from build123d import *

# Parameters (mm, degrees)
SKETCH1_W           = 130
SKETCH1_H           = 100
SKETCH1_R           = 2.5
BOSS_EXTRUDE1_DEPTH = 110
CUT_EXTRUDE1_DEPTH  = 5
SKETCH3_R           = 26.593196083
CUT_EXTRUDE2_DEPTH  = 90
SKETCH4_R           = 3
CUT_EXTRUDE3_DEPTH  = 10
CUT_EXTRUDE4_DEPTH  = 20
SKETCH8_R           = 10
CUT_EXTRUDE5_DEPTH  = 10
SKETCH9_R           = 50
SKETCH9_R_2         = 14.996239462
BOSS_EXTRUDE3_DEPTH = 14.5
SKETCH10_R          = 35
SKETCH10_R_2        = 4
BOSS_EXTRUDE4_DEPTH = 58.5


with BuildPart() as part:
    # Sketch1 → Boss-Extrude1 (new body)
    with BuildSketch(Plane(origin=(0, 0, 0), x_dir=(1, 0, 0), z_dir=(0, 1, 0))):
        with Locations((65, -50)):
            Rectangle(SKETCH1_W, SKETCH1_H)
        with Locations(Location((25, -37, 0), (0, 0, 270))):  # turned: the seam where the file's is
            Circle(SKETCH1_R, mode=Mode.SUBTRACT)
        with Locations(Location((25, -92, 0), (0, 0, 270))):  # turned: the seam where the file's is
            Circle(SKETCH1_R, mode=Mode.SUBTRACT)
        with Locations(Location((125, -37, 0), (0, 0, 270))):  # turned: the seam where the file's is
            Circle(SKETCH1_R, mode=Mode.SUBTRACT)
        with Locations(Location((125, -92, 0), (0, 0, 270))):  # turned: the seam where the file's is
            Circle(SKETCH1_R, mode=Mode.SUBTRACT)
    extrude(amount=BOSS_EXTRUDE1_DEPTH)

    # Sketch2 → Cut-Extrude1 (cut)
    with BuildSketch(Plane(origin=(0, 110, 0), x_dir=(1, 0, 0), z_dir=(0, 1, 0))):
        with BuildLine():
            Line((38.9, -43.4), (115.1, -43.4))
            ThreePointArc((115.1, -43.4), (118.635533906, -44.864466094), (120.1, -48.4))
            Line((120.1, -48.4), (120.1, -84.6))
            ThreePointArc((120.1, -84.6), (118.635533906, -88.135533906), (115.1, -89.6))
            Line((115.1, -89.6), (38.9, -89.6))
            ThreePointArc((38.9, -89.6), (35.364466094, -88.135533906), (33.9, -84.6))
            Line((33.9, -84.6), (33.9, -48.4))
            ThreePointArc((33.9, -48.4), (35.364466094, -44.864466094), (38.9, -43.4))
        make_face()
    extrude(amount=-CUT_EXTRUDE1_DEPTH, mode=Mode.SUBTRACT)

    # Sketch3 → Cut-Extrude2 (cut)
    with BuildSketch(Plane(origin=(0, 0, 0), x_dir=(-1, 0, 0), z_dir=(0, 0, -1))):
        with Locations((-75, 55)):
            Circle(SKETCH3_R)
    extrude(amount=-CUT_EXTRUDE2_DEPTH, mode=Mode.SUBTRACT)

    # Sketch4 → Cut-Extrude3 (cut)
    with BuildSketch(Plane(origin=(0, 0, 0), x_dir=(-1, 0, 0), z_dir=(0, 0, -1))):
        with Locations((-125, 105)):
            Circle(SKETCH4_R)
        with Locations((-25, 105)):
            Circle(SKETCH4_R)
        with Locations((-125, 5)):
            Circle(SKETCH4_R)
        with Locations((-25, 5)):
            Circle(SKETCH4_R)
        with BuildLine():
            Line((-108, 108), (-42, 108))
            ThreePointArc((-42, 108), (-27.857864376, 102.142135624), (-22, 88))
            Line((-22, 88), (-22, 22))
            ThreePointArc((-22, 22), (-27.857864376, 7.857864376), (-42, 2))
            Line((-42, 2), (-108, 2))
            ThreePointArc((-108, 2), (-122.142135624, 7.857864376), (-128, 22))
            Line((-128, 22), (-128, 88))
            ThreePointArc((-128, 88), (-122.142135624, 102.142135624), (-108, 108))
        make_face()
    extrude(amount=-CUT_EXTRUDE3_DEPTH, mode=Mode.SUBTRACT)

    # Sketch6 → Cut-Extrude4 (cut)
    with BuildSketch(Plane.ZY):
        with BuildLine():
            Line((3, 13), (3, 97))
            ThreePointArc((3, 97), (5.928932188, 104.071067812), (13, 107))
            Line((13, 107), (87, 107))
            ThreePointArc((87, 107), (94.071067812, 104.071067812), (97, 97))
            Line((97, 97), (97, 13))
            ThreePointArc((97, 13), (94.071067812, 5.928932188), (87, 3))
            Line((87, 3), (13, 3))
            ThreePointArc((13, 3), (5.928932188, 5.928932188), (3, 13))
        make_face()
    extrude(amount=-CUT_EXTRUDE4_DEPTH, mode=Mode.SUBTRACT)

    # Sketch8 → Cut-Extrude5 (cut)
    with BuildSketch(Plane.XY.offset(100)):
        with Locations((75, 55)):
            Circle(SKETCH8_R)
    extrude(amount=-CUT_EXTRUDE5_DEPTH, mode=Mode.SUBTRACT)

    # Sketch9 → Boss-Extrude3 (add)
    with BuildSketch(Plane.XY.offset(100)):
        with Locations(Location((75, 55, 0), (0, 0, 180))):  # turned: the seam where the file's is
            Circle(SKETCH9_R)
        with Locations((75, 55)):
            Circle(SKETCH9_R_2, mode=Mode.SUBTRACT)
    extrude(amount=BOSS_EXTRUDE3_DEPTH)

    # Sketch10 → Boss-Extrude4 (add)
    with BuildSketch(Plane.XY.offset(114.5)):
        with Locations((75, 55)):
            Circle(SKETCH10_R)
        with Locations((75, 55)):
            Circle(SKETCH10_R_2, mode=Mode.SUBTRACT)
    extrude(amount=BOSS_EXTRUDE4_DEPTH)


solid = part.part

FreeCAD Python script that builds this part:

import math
import FreeCAD as App
import Part
import Sketcher

V = App.Vector

doc = App.newDocument("Part")
body = doc.addObject("PartDesign::Body", "Body")

sketch1 = doc.addObject("Sketcher::SketchObject", "Sketch")
body.addObject(sketch1)
sketch1.AttachmentSupport = (doc.XZ_Plane, [""])
sketch1.MapMode = "FlatFace"
sketch1.addGeometry([
    Part.LineSegment(V(0, 0, 0), V(0, 100, 0)),
    Part.LineSegment(V(0, 100, 0), V(130, 100, 0)),
    Part.LineSegment(V(130, 100, 0), V(130, 0, 0)),
    Part.LineSegment(V(130, 0, 0), V(0, 0, 0)),
    Part.Circle(V(25, 92, 0), V(0, 0, 1), 2.5),
    Part.Circle(V(125, 92, 0), V(0, 0, 1), 2.5),
    Part.Circle(V(25, 37, 0), V(0, 0, 1), 2.5),
    Part.Circle(V(125, 37, 0), V(0, 0, 1), 2.5),
], False)
sketch1.addConstraint([
    Sketcher.Constraint("Coincident", 0, 2, 1, 1),
    Sketcher.Constraint("Coincident", 1, 2, 2, 1),
    Sketcher.Constraint("Coincident", 2, 2, 3, 1),
    Sketcher.Constraint("Coincident", 3, 2, 0, 1),
    Sketcher.Constraint("Vertical", 0),
    Sketcher.Constraint("Horizontal", 1),
    Sketcher.Constraint("Vertical", 2),
    Sketcher.Constraint("Horizontal", 3),
    Sketcher.Constraint("Coincident", 3, 2, -1, 1),
    Sketcher.Constraint("Equal", 4, 5),
    Sketcher.Constraint("Equal", 5, 6),
    Sketcher.Constraint("Equal", 6, 7),
    Sketcher.Constraint("Horizontal", 4, 3, 5, 3),
    Sketcher.Constraint("Horizontal", 6, 3, 7, 3),
    Sketcher.Constraint("Vertical", 4, 3, 6, 3),
    Sketcher.Constraint("Vertical", 5, 3, 7, 3),
    Sketcher.Constraint("Diameter", 4, 5.0),
    Sketcher.Constraint("DistanceX", 1, 1, 1, 2, 130.0),
    Sketcher.Constraint("DistanceY", 0, 1, 0, 2, 100.0),
    Sketcher.Constraint("DistanceX", -1, 1, 4, 3, 25.0),
    Sketcher.Constraint("DistanceY", -1, 1, 4, 3, 92.0),
    Sketcher.Constraint("DistanceX", -1, 1, 5, 3, 125.0),
    Sketcher.Constraint("DistanceY", -1, 1, 6, 3, 37.0),
])
pad1 = doc.addObject("PartDesign::Pad", "Pad")
body.addObject(pad1)
pad1.Profile = sketch1
pad1.Length = 110
pad1.Reversed = True

sketch2 = doc.addObject("Sketcher::SketchObject", "Sketch001")
body.addObject(sketch2)
sketch2.AttachmentSupport = (doc.XZ_Plane, [""])
sketch2.MapMode = "FlatFace"
sketch2.AttachmentOffset = App.Placement(V(0, 0, -110), App.Rotation())
sketch2.addGeometry([
    Part.LineSegment(V(115, 43, 0), V(39, 43, 0)),
    Part.ArcOfCircle(Part.Circle(V(39, 48, 0), V(0, 0, 1), 5), math.radians(180), math.radians(270)),
    Part.LineSegment(V(34, 48, 0), V(34, 85, 0)),
    Part.ArcOfCircle(Part.Circle(V(39, 85, 0), V(0, 0, 1), 5), math.radians(90), math.radians(180)),
    Part.LineSegment(V(39, 90, 0), V(115, 90, 0)),
    Part.ArcOfCircle(Part.Circle(V(115, 85, 0), V(0, 0, 1), 5), math.radians(0), math.radians(90)),
    Part.LineSegment(V(120, 85, 0), V(120, 48, 0)),
    Part.ArcOfCircle(Part.Circle(V(115, 48, 0), V(0, 0, 1), 5), math.radians(-90), math.radians(0)),
], False)
sketch2.addConstraint([
    Sketcher.Constraint("Tangent", 0, 2, 1, 2),
    Sketcher.Constraint("Tangent", 1, 1, 2, 1),
    Sketcher.Constraint("Tangent", 2, 2, 3, 2),
    Sketcher.Constraint("Tangent", 3, 1, 4, 1),
    Sketcher.Constraint("Tangent", 4, 2, 5, 2),
    Sketcher.Constraint("Tangent", 5, 1, 6, 1),
    Sketcher.Constraint("Tangent", 6, 2, 7, 2),
    Sketcher.Constraint("Tangent", 7, 1, 0, 1),
    Sketcher.Constraint("Horizontal", 0),
    Sketcher.Constraint("Vertical", 2),
    Sketcher.Constraint("Horizontal", 4),
    Sketcher.Constraint("Vertical", 6),
    Sketcher.Constraint("Equal", 1, 3),
    Sketcher.Constraint("Equal", 3, 5),
    Sketcher.Constraint("Equal", 5, 7),
    Sketcher.Constraint("Radius", 1, 5.0),
    Sketcher.Constraint("DistanceX", 0, 2, 0, 1, 76.2),
    Sketcher.Constraint("DistanceY", 2, 1, 2, 2, 36.2),
    Sketcher.Constraint("DistanceX", -1, 1, 1, 3, 38.9),
    Sketcher.Constraint("DistanceY", -1, 1, 1, 3, 48.4),
])
pocket1 = doc.addObject("PartDesign::Pocket", "Pocket")
body.addObject(pocket1)
pocket1.Profile = sketch2
pocket1.Length = 5
pocket1.Reversed = True

sketch3 = doc.addObject("Sketcher::SketchObject", "Sketch002")
body.addObject(sketch3)
sketch3.AttachmentSupport = (doc.XY_Plane, [""])
sketch3.MapMode = "FlatFace"
sketch3.addGeometry(Part.Circle(V(75, 55, 0), V(0, 0, 1), 27), False)
sketch3.addConstraint([
    Sketcher.Constraint("DistanceX", -1, 1, 0, 3, 75.0),
    Sketcher.Constraint("DistanceY", -1, 1, 0, 3, 55.0),
    Sketcher.Constraint("Diameter", 0, 53.186392),
])
pocket2 = doc.addObject("PartDesign::Pocket", "Pocket001")
body.addObject(pocket2)
pocket2.Profile = sketch3
pocket2.Length = 90
pocket2.Reversed = True

sketch4 = doc.addObject("Sketcher::SketchObject", "Sketch003")
body.addObject(sketch4)
sketch4.AttachmentSupport = (doc.XY_Plane, [""])
sketch4.MapMode = "FlatFace"
sketch4.addGeometry([
    Part.Circle(V(125, 105, 0), V(0, 0, 1), 3),
    Part.Circle(V(25, 105, 0), V(0, 0, 1), 3),
    Part.Circle(V(125, 5, 0), V(0, 0, 1), 3),
    Part.Circle(V(25, 5, 0), V(0, 0, 1), 3),
    Part.LineSegment(V(42, 108, 0), V(108, 108, 0)),
    Part.ArcOfCircle(Part.Circle(V(108, 88, 0), V(0, 0, 1), 20), math.radians(0), math.radians(90)),
    Part.LineSegment(V(128, 88, 0), V(128, 22, 0)),
    Part.ArcOfCircle(Part.Circle(V(108, 22, 0), V(0, 0, 1), 20), math.radians(-90), math.radians(0)),
    Part.LineSegment(V(108, 2, 0), V(42, 2, 0)),
    Part.ArcOfCircle(Part.Circle(V(42, 22, 0), V(0, 0, 1), 20), math.radians(180), math.radians(270)),
    Part.LineSegment(V(22, 22, 0), V(22, 88, 0)),
    Part.ArcOfCircle(Part.Circle(V(42, 88, 0), V(0, 0, 1), 20), math.radians(90), math.radians(180)),
], False)
sketch4.addConstraint([
    Sketcher.Constraint("Tangent", 4, 2, 5, 2),
    Sketcher.Constraint("Tangent", 5, 1, 6, 1),
    Sketcher.Constraint("Tangent", 6, 2, 7, 2),
    Sketcher.Constraint("Tangent", 7, 1, 8, 1),
    Sketcher.Constraint("Tangent", 8, 2, 9, 2),
    Sketcher.Constraint("Tangent", 9, 1, 10, 1),
    Sketcher.Constraint("Tangent", 10, 2, 11, 2),
    Sketcher.Constraint("Tangent", 11, 1, 4, 1),
    Sketcher.Constraint("Horizontal", 4),
    Sketcher.Constraint("Vertical", 6),
    Sketcher.Constraint("Horizontal", 8),
    Sketcher.Constraint("Vertical", 10),
    Sketcher.Constraint("Equal", 0, 1),
    Sketcher.Constraint("Equal", 1, 2),
    Sketcher.Constraint("Equal", 2, 3),
    Sketcher.Constraint("Equal", 5, 7),
    Sketcher.Constraint("Equal", 7, 9),
    Sketcher.Constraint("Equal", 9, 11),
    Sketcher.Constraint("Horizontal", 0, 3, 1, 3),
    Sketcher.Constraint("Horizontal", 2, 3, 3, 3),
    Sketcher.Constraint("Vertical", 0, 3, 2, 3),
    Sketcher.Constraint("Vertical", 1, 3, 3, 3),
    Sketcher.Constraint("Equal", 8, 6),
    Sketcher.Constraint("Diameter", 0, 6.0),
    Sketcher.Constraint("Radius", 5, 20.0),
    Sketcher.Constraint("DistanceX", 4, 1, 4, 2, 66.0),
    Sketcher.Constraint("DistanceX", -1, 1, 0, 3, 125.0),
    Sketcher.Constraint("DistanceY", -1, 1, 0, 3, 105.0),
    Sketcher.Constraint("DistanceX", -1, 1, 1, 3, 25.0),
    Sketcher.Constraint("DistanceY", -1, 1, 2, 3, 5.0),
    Sketcher.Constraint("DistanceX", -1, 1, 5, 3, 108.0),
    Sketcher.Constraint("DistanceY", -1, 1, 5, 3, 88.0),
])
pocket3 = doc.addObject("PartDesign::Pocket", "Pocket002")
body.addObject(pocket3)
pocket3.Profile = sketch4
pocket3.Length = 10
pocket3.Reversed = True

sketch5 = doc.addObject("Sketcher::SketchObject", "Sketch004")
body.addObject(sketch5)
sketch5.AttachmentSupport = (doc.YZ_Plane, [""])
sketch5.MapMode = "FlatFace"
sketch5.addGeometry([
    Part.LineSegment(V(97, 3, 0), V(13, 3, 0)),
    Part.ArcOfCircle(Part.Circle(V(13, 13, 0), V(0, 0, 1), 10), math.radians(180), math.radians(270)),
    Part.LineSegment(V(3, 13, 0), V(3, 87, 0)),
    Part.ArcOfCircle(Part.Circle(V(13, 87, 0), V(0, 0, 1), 10), math.radians(90), math.radians(180)),
    Part.LineSegment(V(13, 97, 0), V(97, 97, 0)),
    Part.ArcOfCircle(Part.Circle(V(97, 87, 0), V(0, 0, 1), 10), math.radians(0), math.radians(90)),
    Part.LineSegment(V(107, 87, 0), V(107, 13, 0)),
    Part.ArcOfCircle(Part.Circle(V(97, 13, 0), V(0, 0, 1), 10), math.radians(-90), math.radians(0)),
], False)
sketch5.addConstraint([
    Sketcher.Constraint("Tangent", 0, 2, 1, 2),
    Sketcher.Constraint("Tangent", 1, 1, 2, 1),
    Sketcher.Constraint("Tangent", 2, 2, 3, 2),
    Sketcher.Constraint("Tangent", 3, 1, 4, 1),
    Sketcher.Constraint("Tangent", 4, 2, 5, 2),
    Sketcher.Constraint("Tangent", 5, 1, 6, 1),
    Sketcher.Constraint("Tangent", 6, 2, 7, 2),
    Sketcher.Constraint("Tangent", 7, 1, 0, 1),
    Sketcher.Constraint("Horizontal", 0),
    Sketcher.Constraint("Vertical", 2),
    Sketcher.Constraint("Horizontal", 4),
    Sketcher.Constraint("Vertical", 6),
    Sketcher.Constraint("Equal", 1, 3),
    Sketcher.Constraint("Equal", 3, 5),
    Sketcher.Constraint("Equal", 5, 7),
    Sketcher.Constraint("Radius", 1, 10.0),
    Sketcher.Constraint("DistanceX", 0, 2, 0, 1, 84.0),
    Sketcher.Constraint("DistanceY", 2, 1, 2, 2, 74.0),
    Sketcher.Constraint("DistanceX", -1, 1, 1, 3, 13.0),
    Sketcher.Constraint("DistanceY", -1, 1, 1, 3, 13.0),
])
pocket4 = doc.addObject("PartDesign::Pocket", "Pocket003")
body.addObject(pocket4)
pocket4.Profile = sketch5
pocket4.Length = 20
pocket4.Reversed = True

sketch6 = doc.addObject("Sketcher::SketchObject", "Sketch005")
body.addObject(sketch6)
sketch6.AttachmentSupport = (doc.XY_Plane, [""])
sketch6.MapMode = "FlatFace"
sketch6.AttachmentOffset = App.Placement(V(0, 0, 100), App.Rotation())
sketch6.addGeometry(Part.Circle(V(75, 55, 0), V(0, 0, 1), 10), False)
sketch6.addConstraint([
    Sketcher.Constraint("Diameter", 0, 20.0),
    Sketcher.Constraint("DistanceX", -1, 1, 0, 3, 75.0),
    Sketcher.Constraint("DistanceY", -1, 1, 0, 3, 55.0),
])
pocket5 = doc.addObject("PartDesign::Pocket", "Pocket004")
body.addObject(pocket5)
pocket5.Profile = sketch6
pocket5.Length = 10

sketch7 = doc.addObject("Sketcher::SketchObject", "Sketch006")
body.addObject(sketch7)
sketch7.AttachmentSupport = (doc.XY_Plane, [""])
sketch7.MapMode = "FlatFace"
sketch7.AttachmentOffset = App.Placement(V(0, 0, 100), App.Rotation())
sketch7.addGeometry([
    Part.Circle(V(75, 55, 0), V(0, 0, 1), 50),
    Part.Circle(V(75, 55, 0), V(0, 0, 1), 15),
], False)
sketch7.addConstraint([
    Sketcher.Constraint("Coincident", 1, 3, 0, 3),
    Sketcher.Constraint("Diameter", 0, 100.0),
    Sketcher.Constraint("DistanceX", -1, 1, 0, 3, 75.0),
    Sketcher.Constraint("DistanceY", -1, 1, 0, 3, 55.0),
    Sketcher.Constraint("Diameter", 1, 29.992479),
])
pad2 = doc.addObject("PartDesign::Pad", "Pad001")
body.addObject(pad2)
pad2.Profile = sketch7
pad2.Length = 14.5

sketch8 = doc.addObject("Sketcher::SketchObject", "Sketch007")
body.addObject(sketch8)
sketch8.AttachmentSupport = (doc.XY_Plane, [""])
sketch8.MapMode = "FlatFace"
sketch8.AttachmentOffset = App.Placement(V(0, 0, 114.5), App.Rotation())
sketch8.addGeometry([
    Part.Circle(V(75, 55, 0), V(0, 0, 1), 35),
    Part.Circle(V(75, 55, 0), V(0, 0, 1), 4),
], False)
sketch8.addConstraint([
    Sketcher.Constraint("Coincident", 1, 3, 0, 3),
    Sketcher.Constraint("Diameter", 0, 70.0),
    Sketcher.Constraint("Diameter", 1, 8.0),
    Sketcher.Constraint("DistanceX", -1, 1, 0, 3, 75.0),
    Sketcher.Constraint("DistanceY", -1, 1, 0, 3, 55.0),
])
pad3 = doc.addObject("PartDesign::Pad", "Pad002")
body.addObject(pad3)
pad3.Profile = sketch8
pad3.Length = 58.5

doc.recompute()
